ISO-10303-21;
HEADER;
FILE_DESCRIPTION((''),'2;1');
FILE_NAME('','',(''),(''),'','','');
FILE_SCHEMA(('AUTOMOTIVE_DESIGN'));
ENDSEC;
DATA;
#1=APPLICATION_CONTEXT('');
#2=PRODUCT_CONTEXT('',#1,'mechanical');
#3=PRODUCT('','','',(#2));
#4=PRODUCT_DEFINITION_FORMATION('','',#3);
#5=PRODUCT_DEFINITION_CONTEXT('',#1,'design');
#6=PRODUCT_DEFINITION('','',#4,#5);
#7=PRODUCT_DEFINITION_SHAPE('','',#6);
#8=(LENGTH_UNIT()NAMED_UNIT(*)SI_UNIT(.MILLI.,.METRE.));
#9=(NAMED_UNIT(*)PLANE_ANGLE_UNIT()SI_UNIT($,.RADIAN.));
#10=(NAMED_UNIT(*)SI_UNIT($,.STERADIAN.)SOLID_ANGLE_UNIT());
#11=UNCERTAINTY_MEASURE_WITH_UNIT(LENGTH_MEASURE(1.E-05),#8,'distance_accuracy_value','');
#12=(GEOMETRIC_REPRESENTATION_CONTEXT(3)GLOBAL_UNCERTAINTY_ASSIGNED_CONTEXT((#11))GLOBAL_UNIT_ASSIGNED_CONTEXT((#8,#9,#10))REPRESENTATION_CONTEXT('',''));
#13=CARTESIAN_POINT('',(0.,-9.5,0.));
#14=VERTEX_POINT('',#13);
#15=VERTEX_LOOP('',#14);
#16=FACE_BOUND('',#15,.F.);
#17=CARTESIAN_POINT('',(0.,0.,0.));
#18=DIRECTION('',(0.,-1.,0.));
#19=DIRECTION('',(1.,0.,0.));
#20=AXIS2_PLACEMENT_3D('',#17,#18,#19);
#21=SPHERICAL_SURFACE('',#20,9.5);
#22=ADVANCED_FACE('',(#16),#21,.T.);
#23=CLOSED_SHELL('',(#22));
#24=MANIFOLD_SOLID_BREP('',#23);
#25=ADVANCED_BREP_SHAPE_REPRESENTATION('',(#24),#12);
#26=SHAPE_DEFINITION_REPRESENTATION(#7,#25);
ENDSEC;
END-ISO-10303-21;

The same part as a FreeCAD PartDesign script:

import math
import FreeCAD as App
import Part
import Sketcher
Q = App.Units.Quantity

doc = App.newDocument("Part")
body = doc.addObject("PartDesign::Body", "Body")

sketch1 = body.newObject("Sketcher::SketchObject", "Sketch")
sketch1.AttachmentSupport = (doc.getObject("XY_Plane"), [""])
sketch1.MapMode = "FlatFace"
sketch1.addGeometry(Part.LineSegment(App.Vector(0, 10, 0), App.Vector(0, -10, 0)), False)
sketch1.addGeometry(Part.ArcOfCircle(Part.Circle(App.Vector(0, 0, 0), App.Vector(0, 0, 1), 10), math.radians(-90), math.radians(90)), False)
sketch1.addConstraint(Sketcher.Constraint("Coincident", 0, 1, 1, 2))
sketch1.addConstraint(Sketcher.Constraint("Coincident", 1, 1, 0, 2))
sketch1.addConstraint(Sketcher.Constraint("Vertical", 0))
sketch1.addConstraint(Sketcher.Constraint("Coincident", 1, 3, -1, 1))
sketch1.addConstraint(Sketcher.Constraint("PointOnObject", 0, 1, -2))
sketch1.addConstraint(Sketcher.Constraint("Radius", 1, Q("9.5 mm")))
revolution = body.newObject("PartDesign::Revolution", "Revolution")
revolution.Profile = sketch1
revolution.ReferenceAxis = (sketch1, ["V_Axis"])
revolution.Angle = 360

doc.recompute()
